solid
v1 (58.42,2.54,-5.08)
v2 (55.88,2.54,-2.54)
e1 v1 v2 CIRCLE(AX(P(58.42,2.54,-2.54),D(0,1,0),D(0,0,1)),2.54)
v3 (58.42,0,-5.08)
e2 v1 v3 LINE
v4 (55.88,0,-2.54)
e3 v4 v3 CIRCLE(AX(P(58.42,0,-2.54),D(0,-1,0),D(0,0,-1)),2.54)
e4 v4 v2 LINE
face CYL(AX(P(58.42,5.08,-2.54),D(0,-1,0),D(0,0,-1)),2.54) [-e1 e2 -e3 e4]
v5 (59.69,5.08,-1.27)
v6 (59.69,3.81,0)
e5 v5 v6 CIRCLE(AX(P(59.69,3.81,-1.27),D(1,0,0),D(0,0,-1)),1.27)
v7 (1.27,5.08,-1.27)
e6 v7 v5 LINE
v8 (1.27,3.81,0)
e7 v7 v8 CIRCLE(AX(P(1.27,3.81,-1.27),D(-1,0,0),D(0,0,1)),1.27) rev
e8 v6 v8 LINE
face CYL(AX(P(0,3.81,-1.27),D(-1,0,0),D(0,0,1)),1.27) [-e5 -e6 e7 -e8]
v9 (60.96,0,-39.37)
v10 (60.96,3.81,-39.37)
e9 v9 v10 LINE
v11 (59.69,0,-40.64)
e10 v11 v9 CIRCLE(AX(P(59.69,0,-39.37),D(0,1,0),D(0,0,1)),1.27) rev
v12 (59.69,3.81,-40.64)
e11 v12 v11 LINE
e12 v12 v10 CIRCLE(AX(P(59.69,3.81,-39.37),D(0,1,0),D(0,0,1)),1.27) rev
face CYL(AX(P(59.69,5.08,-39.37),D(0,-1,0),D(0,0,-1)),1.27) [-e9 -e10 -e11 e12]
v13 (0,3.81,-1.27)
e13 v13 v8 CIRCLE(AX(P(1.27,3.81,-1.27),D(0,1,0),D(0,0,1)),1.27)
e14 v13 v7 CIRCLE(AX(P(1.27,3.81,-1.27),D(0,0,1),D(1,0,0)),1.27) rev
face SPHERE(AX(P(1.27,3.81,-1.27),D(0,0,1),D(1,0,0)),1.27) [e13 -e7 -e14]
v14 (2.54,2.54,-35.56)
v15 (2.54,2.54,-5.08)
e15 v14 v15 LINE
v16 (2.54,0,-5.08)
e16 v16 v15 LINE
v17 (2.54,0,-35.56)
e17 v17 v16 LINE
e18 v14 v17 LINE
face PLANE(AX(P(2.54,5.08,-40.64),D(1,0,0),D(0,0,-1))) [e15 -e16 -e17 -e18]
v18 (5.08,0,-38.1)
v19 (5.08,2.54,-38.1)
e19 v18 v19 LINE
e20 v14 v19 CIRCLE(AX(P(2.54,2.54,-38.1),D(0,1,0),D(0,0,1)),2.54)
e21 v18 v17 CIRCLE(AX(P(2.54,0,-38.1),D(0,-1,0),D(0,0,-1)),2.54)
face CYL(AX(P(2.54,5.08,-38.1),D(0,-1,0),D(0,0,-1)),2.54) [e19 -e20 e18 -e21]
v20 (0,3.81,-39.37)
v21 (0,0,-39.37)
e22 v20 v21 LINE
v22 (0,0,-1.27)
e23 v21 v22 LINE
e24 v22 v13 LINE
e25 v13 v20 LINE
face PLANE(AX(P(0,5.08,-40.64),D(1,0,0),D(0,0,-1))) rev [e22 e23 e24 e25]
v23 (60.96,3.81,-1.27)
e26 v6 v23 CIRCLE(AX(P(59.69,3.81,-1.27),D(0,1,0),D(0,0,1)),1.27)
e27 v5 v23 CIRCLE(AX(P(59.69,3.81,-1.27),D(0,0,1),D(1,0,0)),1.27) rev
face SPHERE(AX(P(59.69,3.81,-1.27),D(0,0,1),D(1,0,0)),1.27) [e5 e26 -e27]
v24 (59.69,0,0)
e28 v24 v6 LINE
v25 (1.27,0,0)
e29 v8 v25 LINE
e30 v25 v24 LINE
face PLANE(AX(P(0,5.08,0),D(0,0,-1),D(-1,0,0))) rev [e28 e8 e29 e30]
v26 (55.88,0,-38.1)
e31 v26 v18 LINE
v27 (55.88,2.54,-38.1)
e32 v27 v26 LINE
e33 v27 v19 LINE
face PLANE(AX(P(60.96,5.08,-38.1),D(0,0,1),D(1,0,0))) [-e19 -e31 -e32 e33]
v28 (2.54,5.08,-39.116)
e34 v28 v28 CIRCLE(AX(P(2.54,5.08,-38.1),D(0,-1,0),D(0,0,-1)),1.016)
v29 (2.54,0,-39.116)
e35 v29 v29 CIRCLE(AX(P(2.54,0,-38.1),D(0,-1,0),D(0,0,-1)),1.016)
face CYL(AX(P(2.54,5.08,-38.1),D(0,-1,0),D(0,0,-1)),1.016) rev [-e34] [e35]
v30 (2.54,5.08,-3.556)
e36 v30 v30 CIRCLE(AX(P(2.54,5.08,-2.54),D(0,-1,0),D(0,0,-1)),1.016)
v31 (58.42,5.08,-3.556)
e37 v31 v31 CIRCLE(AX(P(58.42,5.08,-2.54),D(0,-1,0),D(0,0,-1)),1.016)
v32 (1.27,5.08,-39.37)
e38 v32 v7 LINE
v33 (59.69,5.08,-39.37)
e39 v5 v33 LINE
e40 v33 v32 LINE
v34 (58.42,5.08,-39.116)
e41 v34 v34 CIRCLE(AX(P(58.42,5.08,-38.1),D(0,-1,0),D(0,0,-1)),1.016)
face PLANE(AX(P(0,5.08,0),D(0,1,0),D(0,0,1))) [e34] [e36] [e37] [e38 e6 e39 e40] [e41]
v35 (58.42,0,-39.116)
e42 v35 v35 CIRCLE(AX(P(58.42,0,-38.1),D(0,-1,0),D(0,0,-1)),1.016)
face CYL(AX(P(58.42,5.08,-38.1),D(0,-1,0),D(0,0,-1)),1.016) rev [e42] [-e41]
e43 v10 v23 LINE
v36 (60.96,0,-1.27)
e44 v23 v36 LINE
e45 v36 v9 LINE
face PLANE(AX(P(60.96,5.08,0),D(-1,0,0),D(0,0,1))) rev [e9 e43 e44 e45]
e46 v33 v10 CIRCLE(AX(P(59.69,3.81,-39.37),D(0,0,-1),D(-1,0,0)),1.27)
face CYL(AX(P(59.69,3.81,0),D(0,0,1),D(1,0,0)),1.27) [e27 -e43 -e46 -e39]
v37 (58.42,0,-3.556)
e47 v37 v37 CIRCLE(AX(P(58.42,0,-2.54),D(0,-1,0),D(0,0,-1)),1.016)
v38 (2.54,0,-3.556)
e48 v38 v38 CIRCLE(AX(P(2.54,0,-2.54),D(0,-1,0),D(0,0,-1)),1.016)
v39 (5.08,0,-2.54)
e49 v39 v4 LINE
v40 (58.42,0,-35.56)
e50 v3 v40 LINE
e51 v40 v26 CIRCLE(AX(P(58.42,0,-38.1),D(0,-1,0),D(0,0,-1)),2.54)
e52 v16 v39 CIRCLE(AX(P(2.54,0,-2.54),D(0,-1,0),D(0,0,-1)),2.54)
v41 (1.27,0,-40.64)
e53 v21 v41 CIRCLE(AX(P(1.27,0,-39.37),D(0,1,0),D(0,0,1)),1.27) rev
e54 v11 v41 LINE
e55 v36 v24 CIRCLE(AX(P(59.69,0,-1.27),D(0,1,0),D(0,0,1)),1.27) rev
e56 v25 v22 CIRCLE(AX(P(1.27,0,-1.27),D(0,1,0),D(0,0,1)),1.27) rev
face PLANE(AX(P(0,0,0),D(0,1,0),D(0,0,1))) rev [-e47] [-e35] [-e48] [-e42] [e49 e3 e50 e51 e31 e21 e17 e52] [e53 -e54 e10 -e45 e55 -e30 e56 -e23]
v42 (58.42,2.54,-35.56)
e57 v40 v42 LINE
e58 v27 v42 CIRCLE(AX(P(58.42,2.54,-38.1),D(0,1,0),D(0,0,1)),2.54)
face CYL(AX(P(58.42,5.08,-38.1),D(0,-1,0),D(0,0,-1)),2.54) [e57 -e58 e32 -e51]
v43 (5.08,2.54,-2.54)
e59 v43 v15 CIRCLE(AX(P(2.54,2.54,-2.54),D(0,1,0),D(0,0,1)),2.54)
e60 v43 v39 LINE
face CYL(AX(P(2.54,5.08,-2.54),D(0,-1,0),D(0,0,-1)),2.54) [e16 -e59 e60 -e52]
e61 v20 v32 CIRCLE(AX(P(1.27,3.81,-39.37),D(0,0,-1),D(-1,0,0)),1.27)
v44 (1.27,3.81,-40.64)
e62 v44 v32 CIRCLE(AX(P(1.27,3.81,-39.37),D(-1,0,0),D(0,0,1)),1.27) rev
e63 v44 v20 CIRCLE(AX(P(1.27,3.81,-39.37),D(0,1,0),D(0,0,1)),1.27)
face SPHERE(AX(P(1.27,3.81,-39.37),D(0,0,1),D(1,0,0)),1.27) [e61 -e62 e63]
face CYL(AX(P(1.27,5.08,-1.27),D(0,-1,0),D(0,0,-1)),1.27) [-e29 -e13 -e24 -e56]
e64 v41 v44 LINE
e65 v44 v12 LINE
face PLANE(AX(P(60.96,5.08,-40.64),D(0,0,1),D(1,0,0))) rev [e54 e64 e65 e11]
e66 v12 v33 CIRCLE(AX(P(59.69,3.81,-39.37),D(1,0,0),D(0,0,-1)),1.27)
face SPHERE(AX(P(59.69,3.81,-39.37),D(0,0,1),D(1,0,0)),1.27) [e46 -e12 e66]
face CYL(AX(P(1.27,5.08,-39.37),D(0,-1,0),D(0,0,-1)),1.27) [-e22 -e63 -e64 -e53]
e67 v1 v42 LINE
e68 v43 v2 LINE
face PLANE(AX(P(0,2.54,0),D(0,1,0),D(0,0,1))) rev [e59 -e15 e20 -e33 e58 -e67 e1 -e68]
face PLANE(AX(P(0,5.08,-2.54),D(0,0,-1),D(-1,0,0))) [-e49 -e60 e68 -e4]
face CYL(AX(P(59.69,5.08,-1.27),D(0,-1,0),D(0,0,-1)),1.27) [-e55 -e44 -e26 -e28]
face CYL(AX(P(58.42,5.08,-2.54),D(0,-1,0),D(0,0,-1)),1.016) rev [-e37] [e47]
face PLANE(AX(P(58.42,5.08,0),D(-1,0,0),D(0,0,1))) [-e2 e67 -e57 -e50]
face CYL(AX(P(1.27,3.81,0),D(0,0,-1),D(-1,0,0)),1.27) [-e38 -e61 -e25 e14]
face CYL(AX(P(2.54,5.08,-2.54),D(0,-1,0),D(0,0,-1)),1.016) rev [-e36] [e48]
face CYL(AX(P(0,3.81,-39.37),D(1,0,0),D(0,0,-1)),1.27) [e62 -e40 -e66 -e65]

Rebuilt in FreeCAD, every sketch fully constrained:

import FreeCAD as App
import Part
import Sketcher

V = App.Vector
Q = App.Units.Quantity


def edges_at(feature, points):
    """Names of the edges that pass closest to the given points."""
    edges = feature.Shape.Edges
    near = lambda p: min(range(len(edges)), key=lambda i: edges[i].distToShape(Part.Vertex(*p))[0])
    return sorted({f"Edge{near(p) + 1}" for p in points})


def faces_at(feature, points):
    """Names of the faces that lie closest to the given points."""
    faces = feature.Shape.Faces
    near = lambda p: min(range(len(faces)), key=lambda i: faces[i].distToShape(Part.Vertex(*p))[0])
    return sorted({f"Face{near(p) + 1}" for p in points})

doc = App.newDocument("Part")
body = doc.addObject("PartDesign::Body", "Body")

sketch1 = body.newObject("Sketcher::SketchObject", "Sketch")
sketch1.AttachmentSupport = (doc.getObject("XZ_Plane"), [""])
sketch1.MapMode = "FlatFace"
sketch1.addGeometry([
    Part.LineSegment(V(0, -41, 0), V(0, 0, 0)),
    Part.LineSegment(V(0, 0, 0), V(61, 0, 0)),
    Part.LineSegment(V(61, 0, 0), V(61, -41, 0)),
    Part.LineSegment(V(61, -41, 0), V(0, -41, 0)),
], False)
sketch1.addConstraint([
    Sketcher.Constraint("Coincident", 0, 2, 1, 1),
    Sketcher.Constraint("Coincident", 1, 2, 2, 1),
    Sketcher.Constraint("Coincident", 2, 2, 3, 1),
    Sketcher.Constraint("Coincident", 3, 2, 0, 1),
    Sketcher.Constraint("Vertical", 0),
    Sketcher.Constraint("Horizontal", 1),
    Sketcher.Constraint("Vertical", 2),
    Sketcher.Constraint("Horizontal", 3),
    Sketcher.Constraint("Coincident", 0, 2, -1, 1),
    Sketcher.Constraint("DistanceX", 1, 1, 1, 2, Q("2.4 in")),
    Sketcher.Constraint("DistanceY", 0, 1, 0, 2, Q("1.6 in")),
])
pad1 = body.newObject("PartDesign::Pad", "Pad")
pad1.Profile = sketch1
pad1.Length = Q("0.2 in")
pad1.Reversed = True
doc.recompute()

thickness = body.newObject("PartDesign::Thickness", "Thickness")
thickness.Base = (pad1, faces_at(pad1, [(30.48, 0, -20.32)]))
thickness.Value = Q("0.1 in")
thickness.Reversed = True
thickness.Join = "Intersection"

sketch2 = body.newObject("Sketcher::SketchObject", "Sketch001")
sketch2.AttachmentSupport = (doc.getObject("XZ_Plane"), [""])
sketch2.MapMode = "FlatFace"
sketch2.addGeometry([
    Part.Circle(V(58.4, -38.1, 0), V(0, 0, 1), 2.5),
    Part.Circle(V(58.4, -2.5, 0), V(0, 0, 1), 2.5),
    Part.Circle(V(2.5, -2.5, 0), V(0, 0, 1), 2.5),
    Part.Circle(V(2.5, -38.1, 0), V(0, 0, 1), 2.5),
], False)
sketch2.addConstraint([
    Sketcher.Constraint("Equal", 0, 1),
    Sketcher.Constraint("Equal", 1, 2),
    Sketcher.Constraint("Equal", 2, 3),
    Sketcher.Constraint("Horizontal", 1, 3, 2, 3),
    Sketcher.Constraint("Horizontal", 0, 3, 3, 3),
    Sketcher.Constraint("Vertical", 0, 3, 1, 3),
    Sketcher.Constraint("Vertical", 2, 3, 3, 3),
    Sketcher.Constraint("Diameter", 0, Q("0.2 in")),
    Sketcher.Constraint("DistanceX", -1, 1, 0, 3, Q("2.3 in")),
    Sketcher.Constraint("DistanceY", 0, 3, -1, 1, Q("1.5 in")),
    Sketcher.Constraint("DistanceY", 1, 3, -1, 1, Q("0.1 in")),
    Sketcher.Constraint("DistanceX", -1, 1, 2, 3, Q("0.1 in")),
])
pad2 = body.newObject("PartDesign::Pad", "Pad001")
pad2.Profile = sketch2
pad2.Length = Q("0.2 in")
pad2.Reversed = True

sketch3 = body.newObject("Sketcher::SketchObject", "Sketch002")
sketch3.AttachmentSupport = (doc.getObject("XZ_Plane"), [""])
sketch3.MapMode = "FlatFace"
sketch3.addGeometry([
    Part.Circle(V(58.4, -38.1, 0), V(0, 0, 1), 1),
    Part.Circle(V(58.4, -2.5, 0), V(0, 0, 1), 1),
    Part.Circle(V(2.5, -2.5, 0), V(0, 0, 1), 1),
    Part.Circle(V(2.5, -38.1, 0), V(0, 0, 1), 1),
], False)
sketch3.addConstraint([
    Sketcher.Constraint("Equal", 0, 1),
    Sketcher.Constraint("Equal", 1, 2),
    Sketcher.Constraint("Equal", 2, 3),
    Sketcher.Constraint("Horizontal", 1, 3, 2, 3),
    Sketcher.Constraint("Horizontal", 0, 3, 3, 3),
    Sketcher.Constraint("Vertical", 0, 3, 1, 3),
    Sketcher.Constraint("Vertical", 2, 3, 3, 3),
    Sketcher.Constraint("Diameter", 0, Q("0.08 in")),
    Sketcher.Constraint("DistanceX", -1, 1, 0, 3, Q("2.3 in")),
    Sketcher.Constraint("DistanceY", 0, 3, -1, 1, Q("1.5 in")),
    Sketcher.Constraint("DistanceY", 1, 3, -1, 1, Q("0.1 in")),
    Sketcher.Constraint("DistanceX", -1, 1, 2, 3, Q("0.1 in")),
])
pocket1 = body.newObject("PartDesign::Pocket", "Pocket")
pocket1.Profile = sketch3
pocket1.Length = Q("0.2 in")
doc.recompute()

fillet = body.newObject("PartDesign::Fillet", "Fillet")
fillet.Base = (pocket1, edges_at(pocket1, [
    (60.96, 5.08, -20.32),
    (30.48, 5.08, -40.64),
    (0, 5.08, -20.32),
    (30.48, 5.08, 0),
    (0, 2.54, -40.64),
    (60.96, 2.54, -40.64),
    (60.96, 2.54, 0),
    (0, 2.54, 0),
]))
fillet.Radius = Q("0.05 in")

doc.recompute()
